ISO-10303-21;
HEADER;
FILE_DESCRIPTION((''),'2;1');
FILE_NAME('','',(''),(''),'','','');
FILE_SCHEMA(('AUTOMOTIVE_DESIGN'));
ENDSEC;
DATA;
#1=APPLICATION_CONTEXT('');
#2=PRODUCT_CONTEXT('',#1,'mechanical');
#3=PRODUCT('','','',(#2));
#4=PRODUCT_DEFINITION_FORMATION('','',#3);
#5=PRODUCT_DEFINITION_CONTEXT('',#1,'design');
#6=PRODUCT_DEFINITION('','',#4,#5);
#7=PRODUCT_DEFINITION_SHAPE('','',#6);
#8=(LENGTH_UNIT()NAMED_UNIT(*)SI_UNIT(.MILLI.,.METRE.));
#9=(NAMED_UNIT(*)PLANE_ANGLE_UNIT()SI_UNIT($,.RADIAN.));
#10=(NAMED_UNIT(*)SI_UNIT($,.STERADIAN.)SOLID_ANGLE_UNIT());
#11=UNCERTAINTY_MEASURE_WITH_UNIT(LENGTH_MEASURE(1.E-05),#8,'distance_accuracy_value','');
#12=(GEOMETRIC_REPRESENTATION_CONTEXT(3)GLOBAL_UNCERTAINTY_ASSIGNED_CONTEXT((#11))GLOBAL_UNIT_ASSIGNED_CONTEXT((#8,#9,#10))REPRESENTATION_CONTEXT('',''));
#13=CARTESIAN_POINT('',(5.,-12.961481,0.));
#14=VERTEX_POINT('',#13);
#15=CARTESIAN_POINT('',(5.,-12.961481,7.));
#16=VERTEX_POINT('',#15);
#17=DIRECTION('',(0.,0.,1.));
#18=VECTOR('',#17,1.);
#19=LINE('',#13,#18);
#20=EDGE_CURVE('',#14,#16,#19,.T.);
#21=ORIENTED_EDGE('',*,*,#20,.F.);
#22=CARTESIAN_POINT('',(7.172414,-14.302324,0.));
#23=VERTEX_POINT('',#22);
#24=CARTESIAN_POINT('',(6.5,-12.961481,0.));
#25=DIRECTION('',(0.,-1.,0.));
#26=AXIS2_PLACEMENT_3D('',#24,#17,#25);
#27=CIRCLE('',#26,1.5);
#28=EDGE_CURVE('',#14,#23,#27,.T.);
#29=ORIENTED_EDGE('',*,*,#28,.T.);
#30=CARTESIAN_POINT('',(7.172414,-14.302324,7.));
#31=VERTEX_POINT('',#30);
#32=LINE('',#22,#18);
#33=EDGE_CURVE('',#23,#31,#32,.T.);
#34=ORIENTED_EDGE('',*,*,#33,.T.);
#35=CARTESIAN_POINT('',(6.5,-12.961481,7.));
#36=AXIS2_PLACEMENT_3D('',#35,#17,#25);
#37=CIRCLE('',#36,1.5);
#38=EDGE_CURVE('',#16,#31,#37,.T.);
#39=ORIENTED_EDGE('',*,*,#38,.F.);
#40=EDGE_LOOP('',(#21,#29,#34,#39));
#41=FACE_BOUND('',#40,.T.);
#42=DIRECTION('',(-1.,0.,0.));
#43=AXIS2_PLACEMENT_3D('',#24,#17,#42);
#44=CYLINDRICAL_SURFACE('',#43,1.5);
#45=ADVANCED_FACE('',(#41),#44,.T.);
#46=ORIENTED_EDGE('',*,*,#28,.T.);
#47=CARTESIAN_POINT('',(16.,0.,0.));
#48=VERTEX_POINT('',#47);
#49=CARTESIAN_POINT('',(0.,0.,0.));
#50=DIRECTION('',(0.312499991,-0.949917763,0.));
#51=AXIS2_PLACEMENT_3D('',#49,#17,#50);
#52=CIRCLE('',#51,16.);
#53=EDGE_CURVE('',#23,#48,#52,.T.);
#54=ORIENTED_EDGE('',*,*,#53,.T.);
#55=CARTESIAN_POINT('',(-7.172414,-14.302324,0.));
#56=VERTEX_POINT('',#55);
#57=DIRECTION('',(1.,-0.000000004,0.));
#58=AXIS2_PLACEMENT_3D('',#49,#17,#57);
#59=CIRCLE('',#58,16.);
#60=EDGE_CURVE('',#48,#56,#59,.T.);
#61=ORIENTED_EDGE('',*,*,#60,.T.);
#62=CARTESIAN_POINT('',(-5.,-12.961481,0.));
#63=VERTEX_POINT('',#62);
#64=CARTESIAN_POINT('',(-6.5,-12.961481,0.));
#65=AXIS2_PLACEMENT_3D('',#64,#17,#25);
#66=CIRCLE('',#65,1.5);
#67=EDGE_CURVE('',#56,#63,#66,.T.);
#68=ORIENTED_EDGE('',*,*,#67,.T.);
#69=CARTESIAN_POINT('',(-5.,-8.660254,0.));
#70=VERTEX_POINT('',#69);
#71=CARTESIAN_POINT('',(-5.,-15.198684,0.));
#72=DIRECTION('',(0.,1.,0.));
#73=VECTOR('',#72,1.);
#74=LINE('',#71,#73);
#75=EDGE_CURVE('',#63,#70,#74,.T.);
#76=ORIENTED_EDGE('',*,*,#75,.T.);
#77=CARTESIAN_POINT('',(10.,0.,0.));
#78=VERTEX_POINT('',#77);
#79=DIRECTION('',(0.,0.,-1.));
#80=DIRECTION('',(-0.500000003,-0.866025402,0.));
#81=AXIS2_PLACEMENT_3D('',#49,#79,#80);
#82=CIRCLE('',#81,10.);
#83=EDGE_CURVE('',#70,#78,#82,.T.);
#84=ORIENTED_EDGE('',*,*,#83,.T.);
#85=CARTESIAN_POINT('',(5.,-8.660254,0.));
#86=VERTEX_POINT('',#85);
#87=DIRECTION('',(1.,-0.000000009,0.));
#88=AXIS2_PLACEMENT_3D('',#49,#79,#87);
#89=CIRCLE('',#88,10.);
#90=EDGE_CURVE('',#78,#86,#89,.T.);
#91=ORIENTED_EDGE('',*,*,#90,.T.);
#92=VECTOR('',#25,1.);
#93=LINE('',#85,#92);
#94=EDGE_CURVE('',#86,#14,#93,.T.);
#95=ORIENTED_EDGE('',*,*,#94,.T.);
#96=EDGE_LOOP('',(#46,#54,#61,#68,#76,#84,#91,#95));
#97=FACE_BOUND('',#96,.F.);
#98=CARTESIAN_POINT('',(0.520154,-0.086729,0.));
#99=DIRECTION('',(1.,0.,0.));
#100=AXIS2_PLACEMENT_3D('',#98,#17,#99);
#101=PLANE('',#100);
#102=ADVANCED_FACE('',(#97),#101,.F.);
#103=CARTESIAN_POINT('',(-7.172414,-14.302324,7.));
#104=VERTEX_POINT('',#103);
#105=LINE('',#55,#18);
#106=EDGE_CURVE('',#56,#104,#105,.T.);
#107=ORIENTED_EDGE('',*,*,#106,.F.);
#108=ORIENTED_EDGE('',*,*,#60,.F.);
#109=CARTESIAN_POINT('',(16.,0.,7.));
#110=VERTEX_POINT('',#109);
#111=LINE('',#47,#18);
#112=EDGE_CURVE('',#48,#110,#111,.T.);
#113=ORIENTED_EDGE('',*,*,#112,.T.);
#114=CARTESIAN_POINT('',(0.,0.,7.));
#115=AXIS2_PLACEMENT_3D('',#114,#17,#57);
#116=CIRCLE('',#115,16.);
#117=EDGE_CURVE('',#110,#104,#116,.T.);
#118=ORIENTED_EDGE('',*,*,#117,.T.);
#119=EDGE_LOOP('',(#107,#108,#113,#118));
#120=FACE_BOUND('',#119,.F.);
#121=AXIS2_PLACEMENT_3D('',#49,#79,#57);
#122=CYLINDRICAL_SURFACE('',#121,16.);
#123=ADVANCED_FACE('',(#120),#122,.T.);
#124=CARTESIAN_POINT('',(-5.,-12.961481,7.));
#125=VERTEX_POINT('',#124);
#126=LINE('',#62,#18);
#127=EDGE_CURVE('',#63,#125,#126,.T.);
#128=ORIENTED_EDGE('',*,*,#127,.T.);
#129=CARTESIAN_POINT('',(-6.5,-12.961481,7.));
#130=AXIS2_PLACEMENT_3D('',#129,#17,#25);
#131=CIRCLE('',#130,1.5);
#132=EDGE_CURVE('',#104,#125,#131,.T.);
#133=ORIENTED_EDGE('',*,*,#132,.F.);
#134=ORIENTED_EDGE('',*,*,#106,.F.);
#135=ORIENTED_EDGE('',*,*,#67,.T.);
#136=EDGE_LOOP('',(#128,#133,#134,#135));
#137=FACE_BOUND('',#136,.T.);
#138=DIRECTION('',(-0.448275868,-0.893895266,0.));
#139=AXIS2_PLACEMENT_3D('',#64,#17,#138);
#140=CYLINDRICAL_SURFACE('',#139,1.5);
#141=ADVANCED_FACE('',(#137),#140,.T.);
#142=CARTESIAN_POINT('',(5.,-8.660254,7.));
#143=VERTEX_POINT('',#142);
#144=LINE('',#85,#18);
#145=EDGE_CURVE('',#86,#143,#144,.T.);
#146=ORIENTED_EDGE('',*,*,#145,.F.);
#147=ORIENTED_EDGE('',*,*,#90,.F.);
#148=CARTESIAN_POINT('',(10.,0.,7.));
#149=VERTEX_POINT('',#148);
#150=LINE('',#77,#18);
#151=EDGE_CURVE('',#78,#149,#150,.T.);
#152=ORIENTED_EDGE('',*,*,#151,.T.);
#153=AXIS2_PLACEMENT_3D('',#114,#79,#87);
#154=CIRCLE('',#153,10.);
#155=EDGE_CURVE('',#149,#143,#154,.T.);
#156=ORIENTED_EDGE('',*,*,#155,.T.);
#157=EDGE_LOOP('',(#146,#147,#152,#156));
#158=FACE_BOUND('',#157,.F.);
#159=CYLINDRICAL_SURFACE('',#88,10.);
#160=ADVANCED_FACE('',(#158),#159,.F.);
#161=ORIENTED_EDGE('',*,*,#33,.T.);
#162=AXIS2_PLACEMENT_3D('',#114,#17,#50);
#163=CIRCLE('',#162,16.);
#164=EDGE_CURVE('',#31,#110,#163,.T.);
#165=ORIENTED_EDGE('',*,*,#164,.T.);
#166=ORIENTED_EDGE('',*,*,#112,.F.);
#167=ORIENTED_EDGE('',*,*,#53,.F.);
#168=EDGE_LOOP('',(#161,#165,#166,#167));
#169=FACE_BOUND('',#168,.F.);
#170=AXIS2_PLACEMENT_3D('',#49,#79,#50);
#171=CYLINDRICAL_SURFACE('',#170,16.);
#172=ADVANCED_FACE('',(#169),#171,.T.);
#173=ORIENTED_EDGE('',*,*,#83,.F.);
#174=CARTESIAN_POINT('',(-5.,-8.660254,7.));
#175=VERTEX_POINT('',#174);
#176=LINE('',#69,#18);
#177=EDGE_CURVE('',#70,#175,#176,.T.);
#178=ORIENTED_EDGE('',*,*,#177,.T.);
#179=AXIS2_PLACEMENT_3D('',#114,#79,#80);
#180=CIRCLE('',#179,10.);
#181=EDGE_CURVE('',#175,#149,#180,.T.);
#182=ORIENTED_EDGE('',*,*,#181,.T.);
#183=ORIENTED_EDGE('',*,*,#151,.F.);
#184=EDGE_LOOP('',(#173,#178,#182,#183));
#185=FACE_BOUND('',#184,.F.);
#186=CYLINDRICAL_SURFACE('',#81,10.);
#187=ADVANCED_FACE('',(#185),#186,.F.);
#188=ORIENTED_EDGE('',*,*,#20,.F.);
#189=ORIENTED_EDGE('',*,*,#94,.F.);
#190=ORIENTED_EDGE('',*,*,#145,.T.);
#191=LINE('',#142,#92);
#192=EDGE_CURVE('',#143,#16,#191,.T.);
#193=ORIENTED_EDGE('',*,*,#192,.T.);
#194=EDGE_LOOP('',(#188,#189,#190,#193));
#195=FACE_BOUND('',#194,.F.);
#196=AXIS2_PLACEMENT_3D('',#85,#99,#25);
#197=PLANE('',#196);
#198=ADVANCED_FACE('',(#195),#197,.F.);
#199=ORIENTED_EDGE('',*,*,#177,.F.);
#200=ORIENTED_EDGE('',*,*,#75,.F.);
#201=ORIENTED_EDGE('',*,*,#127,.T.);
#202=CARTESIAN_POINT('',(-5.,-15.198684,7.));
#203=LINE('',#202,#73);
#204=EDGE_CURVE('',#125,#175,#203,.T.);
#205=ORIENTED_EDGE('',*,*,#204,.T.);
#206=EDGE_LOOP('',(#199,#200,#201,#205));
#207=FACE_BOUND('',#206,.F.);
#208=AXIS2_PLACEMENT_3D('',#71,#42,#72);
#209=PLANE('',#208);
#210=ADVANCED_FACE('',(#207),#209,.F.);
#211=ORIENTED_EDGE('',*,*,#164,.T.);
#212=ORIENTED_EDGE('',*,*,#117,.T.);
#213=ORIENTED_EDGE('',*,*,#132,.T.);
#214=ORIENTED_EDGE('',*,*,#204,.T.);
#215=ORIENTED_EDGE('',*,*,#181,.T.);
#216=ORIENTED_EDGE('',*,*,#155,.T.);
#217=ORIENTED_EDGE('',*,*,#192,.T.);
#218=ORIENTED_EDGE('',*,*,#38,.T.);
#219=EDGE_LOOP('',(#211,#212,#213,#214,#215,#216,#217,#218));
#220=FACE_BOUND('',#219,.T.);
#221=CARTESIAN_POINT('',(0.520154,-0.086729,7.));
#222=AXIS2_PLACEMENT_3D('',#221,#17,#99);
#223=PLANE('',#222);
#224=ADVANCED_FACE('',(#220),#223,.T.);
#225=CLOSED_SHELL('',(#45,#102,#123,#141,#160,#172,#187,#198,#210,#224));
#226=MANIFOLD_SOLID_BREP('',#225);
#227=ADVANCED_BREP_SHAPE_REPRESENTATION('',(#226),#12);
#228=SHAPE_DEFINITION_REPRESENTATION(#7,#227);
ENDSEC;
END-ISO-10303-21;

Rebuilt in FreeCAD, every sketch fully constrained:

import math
import FreeCAD as App
import Part
import Sketcher
from FreeCAD import Vector
Q = App.Units.Quantity


def edges_at(feature, points):
    """Names of the edges that pass closest to the given points."""
    edges = feature.Shape.Edges
    near = lambda p: min(range(len(edges)), key=lambda i: edges[i].distToShape(Part.Vertex(*p))[0])
    return sorted({f"Edge{near(p) + 1}" for p in points})

doc = App.newDocument("Part")
body = doc.addObject("PartDesign::Body", "Body")

# Sketch on XY plane
sketch1 = doc.addObject("Sketcher::SketchObject", "Sketch")
body.addObject(sketch1)
sketch1.AttachmentSupport = (doc.XY_Plane, [""])
sketch1.MapMode = "FlatFace"
sketch1.addGeometry(Part.ArcOfCircle(Part.Circle(Vector(0, 0, 0), Vector(0, 0, 1), 10), math.radians(0), math.radians(240)), False)
sketch1.addGeometry(Part.ArcOfCircle(Part.Circle(Vector(0, 0, 0), Vector(0, 0, 1), 10), math.radians(-60), math.radians(0)), False)
sketch1.addGeometry(Part.LineSegment(Vector(5, -9, 0), Vector(5, -15, 0)), False)
sketch1.addGeometry(Part.ArcOfCircle(Part.Circle(Vector(0, 0, 0), Vector(0, 0, 1), 16), math.radians(-72), math.radians(0)), False)
sketch1.addGeometry(Part.ArcOfCircle(Part.Circle(Vector(0, 0, 0), Vector(0, 0, 1), 16), math.radians(0), math.radians(252)), False)
sketch1.addGeometry(Part.LineSegment(Vector(-5, -15, 0), Vector(-5, -9, 0)), False)
sketch1.addConstraint(Sketcher.Constraint("Tangent", 0, 1, 1, 2))
sketch1.addConstraint(Sketcher.Constraint("Coincident", 1, 1, 2, 1))
sketch1.addConstraint(Sketcher.Constraint("Coincident", 2, 2, 3, 1))
sketch1.addConstraint(Sketcher.Constraint("Tangent", 3, 2, 4, 1))
sketch1.addConstraint(Sketcher.Constraint("Coincident", 4, 2, 5, 1))
sketch1.addConstraint(Sketcher.Constraint("Coincident", 5, 2, 0, 2))
sketch1.addConstraint(Sketcher.Constraint("Vertical", 2))
sketch1.addConstraint(Sketcher.Constraint("Vertical", 5))
sketch1.addConstraint(Sketcher.Constraint("Coincident", 0, 3, -1, 1))
sketch1.addConstraint(Sketcher.Constraint("Coincident", 3, 3, -1, 1))
sketch1.addConstraint(Sketcher.Constraint("Equal", 0, 1))
sketch1.addConstraint(Sketcher.Constraint("Equal", 3, 4))
sketch1.addConstraint(Sketcher.Constraint("PointOnObject", 0, 1, -1))
sketch1.addConstraint(Sketcher.Constraint("PointOnObject", 3, 2, -1))
sketch1.addConstraint(Sketcher.Constraint("Horizontal", 2, 2, 4, 2))
sketch1.addConstraint(Sketcher.Constraint("Radius", 0, Q("10 mm")))
sketch1.addConstraint(Sketcher.Constraint("Radius", 3, Q("16 mm")))
sketch1.addConstraint(Sketcher.Constraint("DistanceX", -1, 1, 1, 1, Q("5 mm")))
pad1 = doc.addObject("PartDesign::Pad", "Pad")
body.addObject(pad1)
pad1.Profile = sketch1
pad1.Length = 7
doc.recompute()

fillet = doc.addObject("PartDesign::Fillet", "Fillet")
body.addObject(fillet)
fillet.Base = (pad1, edges_at(pad1, [(-5, -15.199, 3.5), (5, -15.199, 3.5)]))
fillet.Radius = 1.5

doc.recompute()
